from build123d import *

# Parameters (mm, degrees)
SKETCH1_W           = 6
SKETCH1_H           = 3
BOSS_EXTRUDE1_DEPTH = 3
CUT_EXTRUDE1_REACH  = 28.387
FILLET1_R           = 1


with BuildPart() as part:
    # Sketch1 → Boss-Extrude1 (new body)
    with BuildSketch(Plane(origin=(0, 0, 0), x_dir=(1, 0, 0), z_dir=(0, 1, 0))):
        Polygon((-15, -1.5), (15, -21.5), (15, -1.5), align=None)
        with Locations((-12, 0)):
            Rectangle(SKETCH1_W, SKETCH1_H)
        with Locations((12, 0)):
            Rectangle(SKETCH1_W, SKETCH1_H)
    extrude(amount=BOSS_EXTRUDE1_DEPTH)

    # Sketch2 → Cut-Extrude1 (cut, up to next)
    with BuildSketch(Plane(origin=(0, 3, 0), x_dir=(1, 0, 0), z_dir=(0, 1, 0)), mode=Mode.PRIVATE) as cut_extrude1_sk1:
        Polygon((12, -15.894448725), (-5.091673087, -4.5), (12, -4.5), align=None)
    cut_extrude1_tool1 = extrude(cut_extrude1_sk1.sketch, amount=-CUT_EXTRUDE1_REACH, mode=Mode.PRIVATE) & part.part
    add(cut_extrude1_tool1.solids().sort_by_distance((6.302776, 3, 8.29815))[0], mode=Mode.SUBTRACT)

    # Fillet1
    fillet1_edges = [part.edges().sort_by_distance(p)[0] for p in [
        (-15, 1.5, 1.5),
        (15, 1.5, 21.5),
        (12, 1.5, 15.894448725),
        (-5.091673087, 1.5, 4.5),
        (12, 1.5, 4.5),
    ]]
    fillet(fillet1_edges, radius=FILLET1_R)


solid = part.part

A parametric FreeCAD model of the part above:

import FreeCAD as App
import Part
import Sketcher

V = App.Vector
Q = App.Units.Quantity


def edges_at(feature, points):
    """Names of the edges that pass closest to the given points."""
    edges = feature.Shape.Edges
    near = lambda p: min(range(len(edges)), key=lambda i: edges[i].distToShape(Part.Vertex(*p))[0])
    return sorted({f"Edge{near(p) + 1}" for p in points})

doc = App.newDocument("Part")
body = doc.addObject("PartDesign::Body", "Body")

sketch1 = body.newObject("Sketcher::SketchObject", "Sketch")
sketch1.AttachmentSupport = (doc.getObject("XZ_Plane"), [""])
sketch1.MapMode = "FlatFace"
sketch1.addGeometry(Part.LineSegment(V(-15, 1.5, 0), V(15, 21.5, 0)), False)
sketch1.addGeometry(Part.LineSegment(V(15, 21.5, 0), V(15, -1.5, 0)), False)
sketch1.addGeometry(Part.LineSegment(V(15, -1.5, 0), V(9, -1.5, 0)), False)
sketch1.addGeometry(Part.LineSegment(V(9, -1.5, 0), V(9, 1.5, 0)), False)
sketch1.addGeometry(Part.LineSegment(V(9, 1.5, 0), V(-9, 1.5, 0)), False)
sketch1.addGeometry(Part.LineSegment(V(-9, 1.5, 0), V(-9, -1.5, 0)), False)
sketch1.addGeometry(Part.LineSegment(V(-9, -1.5, 0), V(-15, -1.5, 0)), False)
sketch1.addGeometry(Part.LineSegment(V(-15, -1.5, 0), V(-15, 1.5, 0)), False)
sketch1.addConstraint(Sketcher.Constraint("Coincident", 0, 2, 1, 1))
sketch1.addConstraint(Sketcher.Constraint("Coincident", 1, 2, 2, 1))
sketch1.addConstraint(Sketcher.Constraint("Coincident", 2, 2, 3, 1))
sketch1.addConstraint(Sketcher.Constraint("Coincident", 3, 2, 4, 1))
sketch1.addConstraint(Sketcher.Constraint("Coincident", 4, 2, 5, 1))
sketch1.addConstraint(Sketcher.Constraint("Coincident", 5, 2, 6, 1))
sketch1.addConstraint(Sketcher.Constraint("Coincident", 6, 2, 7, 1))
sketch1.addConstraint(Sketcher.Constraint("Coincident", 7, 2, 0, 1))
sketch1.addConstraint(Sketcher.Constraint("Vertical", 1))
sketch1.addConstraint(Sketcher.Constraint("Horizontal", 2))
sketch1.addConstraint(Sketcher.Constraint("Vertical", 3))
sketch1.addConstraint(Sketcher.Constraint("Horizontal", 4))
sketch1.addConstraint(Sketcher.Constraint("Vertical", 5))
sketch1.addConstraint(Sketcher.Constraint("Horizontal", 6))
sketch1.addConstraint(Sketcher.Constraint("Vertical", 7))
sketch1.addConstraint(Sketcher.Constraint("Symmetric", 2, 2, 4, 2, -1, 1))
sketch1.addConstraint(Sketcher.Constraint("Symmetric", 1, 2, 7, 2, -1, 1))
sketch1.addConstraint(Sketcher.Constraint("Horizontal", 2, 2, 5, 2))
sketch1.addConstraint(Sketcher.Constraint("DistanceX", 2, 2, 2, 1, Q("6 mm")))
sketch1.addConstraint(Sketcher.Constraint("DistanceX", 4, 2, 4, 1, Q("18 mm")))
sketch1.addConstraint(Sketcher.Constraint("DistanceY", 1, 2, 1, 1, Q("23 mm")))
sketch1.addConstraint(Sketcher.Constraint("DistanceY", 3, 1, 3, 2, Q("3 mm")))
pad1 = body.newObject("PartDesign::Pad", "Pad")
pad1.Profile = sketch1
pad1.Length = 3
pad1.Reversed = True

sketch2 = body.newObject("Sketcher::SketchObject", "Sketch001")
sketch2.AttachmentSupport = (doc.getObject("XZ_Plane"), [""])
sketch2.MapMode = "FlatFace"
sketch2.AttachmentOffset = App.Placement(V(0, 0, -3), App.Rotation())
sketch2.addGeometry(Part.LineSegment(V(-5, 4, 0), V(12, 16, 0)), False)
sketch2.addGeometry(Part.LineSegment(V(12, 16, 0), V(12, 4, 0)), False)
sketch2.addGeometry(Part.LineSegment(V(12, 4, 0), V(-5, 4, 0)), False)
sketch2.addConstraint(Sketcher.Constraint("Coincident", 0, 2, 1, 1))
sketch2.addConstraint(Sketcher.Constraint("Coincident", 1, 2, 2, 1))
sketch2.addConstraint(Sketcher.Constraint("Coincident", 2, 2, 0, 1))
sketch2.addConstraint(Sketcher.Constraint("Vertical", 1))
sketch2.addConstraint(Sketcher.Constraint("Horizontal", 2))
sketch2.addConstraint(Sketcher.Constraint("DistanceX", -1, 1, 0, 2, Q("12 mm")))
sketch2.addConstraint(Sketcher.Constraint("DistanceY", -1, 1, 1, 2, Q("4.5 mm")))
sketch2.addConstraint(Sketcher.Constraint("DistanceY", 1, 2, 1, 1, Q("11.394449 mm")))
sketch2.addConstraint(Sketcher.Constraint("DistanceX", 2, 2, 2, 1, Q("17.091673 mm")))
pocket1 = body.newObject("PartDesign::Pocket", "Pocket")
pocket1.Profile = sketch2
pocket1.Type = "UpToFirst"
pocket1.Reversed = True
doc.recompute()

fillet = body.newObject("PartDesign::Fillet", "Fillet")
fillet.Base = (pocket1, edges_at(pocket1, [
    (-15, 1.5, 1.5),
    (15, 1.5, 21.5),
    (12, 1.5, 15.894),
    (-5.092, 1.5, 4.5),
    (12, 1.5, 4.5),
]))
fillet.Radius = 1

doc.recompute()
